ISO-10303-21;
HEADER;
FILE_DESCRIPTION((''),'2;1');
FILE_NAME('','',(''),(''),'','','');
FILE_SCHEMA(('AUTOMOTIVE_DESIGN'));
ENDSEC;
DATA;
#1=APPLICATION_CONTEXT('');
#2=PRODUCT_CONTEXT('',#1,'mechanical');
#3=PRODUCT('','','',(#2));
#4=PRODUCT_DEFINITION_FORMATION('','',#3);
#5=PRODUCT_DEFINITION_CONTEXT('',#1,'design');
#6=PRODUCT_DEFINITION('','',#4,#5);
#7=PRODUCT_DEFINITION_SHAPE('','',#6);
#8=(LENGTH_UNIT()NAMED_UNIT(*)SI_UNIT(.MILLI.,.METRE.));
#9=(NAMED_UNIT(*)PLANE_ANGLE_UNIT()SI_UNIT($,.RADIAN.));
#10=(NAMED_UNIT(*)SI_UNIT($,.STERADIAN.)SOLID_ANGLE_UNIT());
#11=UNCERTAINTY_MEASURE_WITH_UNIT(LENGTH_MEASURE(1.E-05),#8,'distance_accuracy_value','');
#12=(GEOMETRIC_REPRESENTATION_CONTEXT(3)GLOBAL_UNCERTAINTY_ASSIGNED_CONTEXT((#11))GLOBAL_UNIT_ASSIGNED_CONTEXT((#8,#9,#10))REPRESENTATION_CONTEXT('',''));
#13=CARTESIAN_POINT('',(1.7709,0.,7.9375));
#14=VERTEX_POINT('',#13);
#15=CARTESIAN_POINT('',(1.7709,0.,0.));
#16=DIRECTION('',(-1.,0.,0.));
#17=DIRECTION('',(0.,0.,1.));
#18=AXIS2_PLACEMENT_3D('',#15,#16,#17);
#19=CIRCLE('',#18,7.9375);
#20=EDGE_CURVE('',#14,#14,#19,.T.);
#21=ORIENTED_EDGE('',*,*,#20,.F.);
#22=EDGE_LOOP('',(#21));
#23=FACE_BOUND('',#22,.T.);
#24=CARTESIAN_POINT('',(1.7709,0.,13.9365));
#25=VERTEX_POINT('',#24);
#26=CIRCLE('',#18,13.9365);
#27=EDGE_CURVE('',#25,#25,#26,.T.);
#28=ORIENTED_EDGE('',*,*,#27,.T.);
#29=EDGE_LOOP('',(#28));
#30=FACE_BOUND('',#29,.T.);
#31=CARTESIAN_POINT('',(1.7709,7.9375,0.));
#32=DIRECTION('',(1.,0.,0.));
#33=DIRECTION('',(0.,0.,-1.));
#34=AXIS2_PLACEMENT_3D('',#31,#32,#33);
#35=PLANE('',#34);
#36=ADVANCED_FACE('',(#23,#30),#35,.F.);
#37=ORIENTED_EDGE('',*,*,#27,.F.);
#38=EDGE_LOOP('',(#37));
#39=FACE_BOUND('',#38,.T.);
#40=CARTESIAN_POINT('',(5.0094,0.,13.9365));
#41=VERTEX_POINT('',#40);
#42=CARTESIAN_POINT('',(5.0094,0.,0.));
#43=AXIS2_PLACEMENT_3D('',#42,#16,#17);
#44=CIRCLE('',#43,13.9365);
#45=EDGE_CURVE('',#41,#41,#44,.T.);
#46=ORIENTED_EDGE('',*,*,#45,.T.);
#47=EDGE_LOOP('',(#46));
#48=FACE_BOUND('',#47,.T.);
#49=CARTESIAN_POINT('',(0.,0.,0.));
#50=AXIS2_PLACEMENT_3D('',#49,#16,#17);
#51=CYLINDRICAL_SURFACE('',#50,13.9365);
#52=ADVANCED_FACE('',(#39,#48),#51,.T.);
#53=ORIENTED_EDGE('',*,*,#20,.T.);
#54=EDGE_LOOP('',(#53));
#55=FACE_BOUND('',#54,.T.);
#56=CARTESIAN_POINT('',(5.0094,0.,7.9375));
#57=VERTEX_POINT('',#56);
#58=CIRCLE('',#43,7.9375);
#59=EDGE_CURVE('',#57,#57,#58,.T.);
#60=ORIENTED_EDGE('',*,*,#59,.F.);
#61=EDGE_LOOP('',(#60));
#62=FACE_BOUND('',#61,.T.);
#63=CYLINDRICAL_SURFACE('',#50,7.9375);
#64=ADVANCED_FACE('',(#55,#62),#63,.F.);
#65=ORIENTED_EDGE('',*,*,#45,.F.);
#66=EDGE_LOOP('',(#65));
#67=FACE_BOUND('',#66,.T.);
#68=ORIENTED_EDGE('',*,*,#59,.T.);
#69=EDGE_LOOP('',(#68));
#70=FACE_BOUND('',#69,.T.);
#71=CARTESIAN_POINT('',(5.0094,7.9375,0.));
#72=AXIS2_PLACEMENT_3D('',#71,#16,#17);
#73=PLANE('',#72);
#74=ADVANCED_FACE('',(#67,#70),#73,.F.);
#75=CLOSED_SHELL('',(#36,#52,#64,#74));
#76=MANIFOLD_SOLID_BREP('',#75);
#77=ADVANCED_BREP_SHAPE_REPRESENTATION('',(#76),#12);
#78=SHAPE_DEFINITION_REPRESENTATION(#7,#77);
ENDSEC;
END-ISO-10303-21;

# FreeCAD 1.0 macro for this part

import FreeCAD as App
import Part
import Sketcher

V = App.Vector
Q = App.Units.Quantity

doc = App.newDocument("Part")
params = doc.addObject("Spreadsheet::Sheet", "Params")
for row, (alias, value) in enumerate([
    ("revolution_angle", "360 deg"),
], start=1):
    params.set(f"A{row}", alias)
    params.set(f"B{row}", "=" + value)
    params.setAlias(f"B{row}", alias)

body = doc.addObject("PartDesign::Body", "Body")

# Sketch on XY plane
sketch1 = body.newObject("Sketcher::SketchObject", "Sketch")
sketch1.AttachmentSupport = (doc.getObject("XY_Plane"), [""])
sketch1.MapMode = "FlatFace"
sketch1.addGeometry(Part.LineSegment(V(1.8, 13.9, 0), V(1.8, 7.9, 0)), False)
sketch1.addGeometry(Part.LineSegment(V(1.8, 7.9, 0), V(5, 7.9, 0)), False)
sketch1.addGeometry(Part.LineSegment(V(5, 7.9, 0), V(5, 13.9, 0)), False)
sketch1.addGeometry(Part.LineSegment(V(5, 13.9, 0), V(1.8, 13.9, 0)), False)
sketch1.addConstraint(Sketcher.Constraint("Coincident", 0, 2, 1, 1))
sketch1.addConstraint(Sketcher.Constraint("Coincident", 1, 2, 2, 1))
sketch1.addConstraint(Sketcher.Constraint("Coincident", 2, 2, 3, 1))
sketch1.addConstraint(Sketcher.Constraint("Coincident", 3, 2, 0, 1))
sketch1.addConstraint(Sketcher.Constraint("Vertical", 0))
sketch1.addConstraint(Sketcher.Constraint("Horizontal", 1))
sketch1.addConstraint(Sketcher.Constraint("Vertical", 2))
sketch1.addConstraint(Sketcher.Constraint("Horizontal", 3))
sketch1.addConstraint(Sketcher.Constraint("DistanceY", 0, 2, 0, 1, Q("5.999 mm")))
sketch1.addConstraint(Sketcher.Constraint("DistanceX", 1, 1, 1, 2, Q("3.2385 mm")))
sketch1.addConstraint(Sketcher.Constraint("DistanceX", -1, 1, 0, 2, Q("1.7709 mm")))
sketch1.addConstraint(Sketcher.Constraint("DistanceY", -1, 1, 0, 2, Q("7.9375 mm")))
revolution = body.newObject("PartDesign::Revolution", "Revolution")
revolution.Profile = sketch1
revolution.ReferenceAxis = (sketch1, ["H_Axis"])
revolution.setExpression("Angle", "Params.revolution_angle")

doc.recompute()
